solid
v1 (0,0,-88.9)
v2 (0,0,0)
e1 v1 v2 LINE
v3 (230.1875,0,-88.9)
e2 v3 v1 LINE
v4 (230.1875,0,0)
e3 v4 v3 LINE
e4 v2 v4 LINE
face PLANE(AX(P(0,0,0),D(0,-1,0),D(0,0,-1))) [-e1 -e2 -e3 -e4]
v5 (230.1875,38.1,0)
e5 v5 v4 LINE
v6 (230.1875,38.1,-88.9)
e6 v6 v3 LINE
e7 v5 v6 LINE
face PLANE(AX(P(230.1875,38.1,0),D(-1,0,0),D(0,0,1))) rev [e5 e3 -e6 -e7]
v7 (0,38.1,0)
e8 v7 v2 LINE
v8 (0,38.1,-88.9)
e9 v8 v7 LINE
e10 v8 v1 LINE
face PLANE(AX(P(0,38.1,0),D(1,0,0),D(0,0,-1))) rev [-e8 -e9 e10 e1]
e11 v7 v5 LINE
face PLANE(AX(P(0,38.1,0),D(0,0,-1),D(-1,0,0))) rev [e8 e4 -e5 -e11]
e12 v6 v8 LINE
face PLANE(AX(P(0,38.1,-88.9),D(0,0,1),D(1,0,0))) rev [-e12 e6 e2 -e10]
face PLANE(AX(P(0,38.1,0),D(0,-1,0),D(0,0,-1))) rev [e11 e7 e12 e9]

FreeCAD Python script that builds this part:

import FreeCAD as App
import Part
import Sketcher

V = App.Vector
Q = App.Units.Quantity

doc = App.newDocument("Part")
body = doc.addObject("PartDesign::Body", "Body")

sketch1 = body.newObject("Sketcher::SketchObject", "Sketch")
sketch1.AttachmentSupport = (doc.getObject("XZ_Plane"), [""])
sketch1.MapMode = "FlatFace"
sketch1.addGeometry([
    Part.LineSegment(V(0, -88.9, 0), V(0, 0, 0)),
    Part.LineSegment(V(0, 0, 0), V(230.1875, 0, 0)),
    Part.LineSegment(V(230.1875, 0, 0), V(230.1875, -88.9, 0)),
    Part.LineSegment(V(230.1875, -88.9, 0), V(0, -88.9, 0)),
], False)
sketch1.addConstraint([
    Sketcher.Constraint("Coincident", 0, 2, 1, 1),
    Sketcher.Constraint("Coincident", 1, 2, 2, 1),
    Sketcher.Constraint("Coincident", 2, 2, 3, 1),
    Sketcher.Constraint("Coincident", 3, 2, 0, 1),
    Sketcher.Constraint("Vertical", 0),
    Sketcher.Constraint("Horizontal", 1),
    Sketcher.Constraint("Vertical", 2),
    Sketcher.Constraint("Horizontal", 3),
    Sketcher.Constraint("Coincident", 0, 2, -1, 1),
    Sketcher.Constraint("DistanceY", 0, 1, 0, 2, Q("3.5 in")),
    Sketcher.Constraint("DistanceX", 1, 1, 1, 2, Q("9.0625 in")),
])
pad1 = body.newObject("PartDesign::Pad", "Pad")
pad1.Profile = sketch1
pad1.Length = Q("1.5 in")
pad1.Reversed = True

doc.recompute()
